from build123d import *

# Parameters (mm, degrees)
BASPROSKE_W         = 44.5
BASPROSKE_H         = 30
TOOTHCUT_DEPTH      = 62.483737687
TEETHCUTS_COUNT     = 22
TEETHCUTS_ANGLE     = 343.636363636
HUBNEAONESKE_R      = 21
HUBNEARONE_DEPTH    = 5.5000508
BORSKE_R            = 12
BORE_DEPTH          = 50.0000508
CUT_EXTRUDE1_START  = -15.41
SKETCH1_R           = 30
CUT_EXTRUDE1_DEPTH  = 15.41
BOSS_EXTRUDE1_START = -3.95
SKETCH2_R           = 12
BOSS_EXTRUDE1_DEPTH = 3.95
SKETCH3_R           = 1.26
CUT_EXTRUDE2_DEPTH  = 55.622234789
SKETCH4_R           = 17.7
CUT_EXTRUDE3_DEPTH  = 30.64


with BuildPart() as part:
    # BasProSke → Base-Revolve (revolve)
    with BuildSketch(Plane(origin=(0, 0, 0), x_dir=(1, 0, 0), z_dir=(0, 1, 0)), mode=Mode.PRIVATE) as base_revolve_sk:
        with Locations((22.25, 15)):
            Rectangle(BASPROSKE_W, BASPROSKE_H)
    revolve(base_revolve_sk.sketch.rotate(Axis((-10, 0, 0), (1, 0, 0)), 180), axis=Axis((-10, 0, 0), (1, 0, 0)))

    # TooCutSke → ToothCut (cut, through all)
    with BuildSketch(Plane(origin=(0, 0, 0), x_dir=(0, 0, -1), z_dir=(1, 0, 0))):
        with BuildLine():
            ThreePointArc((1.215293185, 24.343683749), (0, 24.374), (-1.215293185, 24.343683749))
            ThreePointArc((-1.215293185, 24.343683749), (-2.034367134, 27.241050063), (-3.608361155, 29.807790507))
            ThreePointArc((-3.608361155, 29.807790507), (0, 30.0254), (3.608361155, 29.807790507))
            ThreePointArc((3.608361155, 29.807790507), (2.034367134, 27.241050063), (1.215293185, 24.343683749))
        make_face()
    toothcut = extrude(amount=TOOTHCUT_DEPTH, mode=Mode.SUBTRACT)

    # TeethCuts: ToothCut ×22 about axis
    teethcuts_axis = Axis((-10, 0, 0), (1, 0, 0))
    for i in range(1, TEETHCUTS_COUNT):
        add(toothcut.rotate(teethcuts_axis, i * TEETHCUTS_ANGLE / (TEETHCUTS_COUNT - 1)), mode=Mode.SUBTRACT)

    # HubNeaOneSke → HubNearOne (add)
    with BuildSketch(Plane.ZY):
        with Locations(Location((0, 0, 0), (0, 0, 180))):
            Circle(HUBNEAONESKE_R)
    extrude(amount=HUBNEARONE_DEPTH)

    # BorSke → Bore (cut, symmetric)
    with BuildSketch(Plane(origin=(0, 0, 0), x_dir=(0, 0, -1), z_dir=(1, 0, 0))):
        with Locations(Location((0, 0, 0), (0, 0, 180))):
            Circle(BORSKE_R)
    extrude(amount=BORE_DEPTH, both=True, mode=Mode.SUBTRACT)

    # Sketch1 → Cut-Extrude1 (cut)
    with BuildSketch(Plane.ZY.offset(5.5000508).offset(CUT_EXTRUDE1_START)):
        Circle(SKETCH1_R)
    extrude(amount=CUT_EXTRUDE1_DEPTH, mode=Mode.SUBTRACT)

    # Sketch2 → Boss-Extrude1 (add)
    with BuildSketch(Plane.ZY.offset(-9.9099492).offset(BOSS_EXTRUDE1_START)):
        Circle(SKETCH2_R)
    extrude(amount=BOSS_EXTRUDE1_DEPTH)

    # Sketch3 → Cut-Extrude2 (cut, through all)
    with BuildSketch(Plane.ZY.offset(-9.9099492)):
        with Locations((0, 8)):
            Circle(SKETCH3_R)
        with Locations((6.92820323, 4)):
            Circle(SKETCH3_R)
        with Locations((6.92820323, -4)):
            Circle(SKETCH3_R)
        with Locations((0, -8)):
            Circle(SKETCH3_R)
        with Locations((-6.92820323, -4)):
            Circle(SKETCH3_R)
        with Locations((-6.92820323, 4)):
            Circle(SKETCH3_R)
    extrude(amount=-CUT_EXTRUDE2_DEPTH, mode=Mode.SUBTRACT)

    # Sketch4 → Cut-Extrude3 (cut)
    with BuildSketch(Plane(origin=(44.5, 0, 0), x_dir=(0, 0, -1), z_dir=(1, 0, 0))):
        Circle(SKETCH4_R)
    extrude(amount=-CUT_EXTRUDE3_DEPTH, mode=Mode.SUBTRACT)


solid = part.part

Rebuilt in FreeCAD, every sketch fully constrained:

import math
import FreeCAD as App
import Part
import Sketcher

V = App.Vector


def add_polygon(sketch, points):
    """Adds a closed chain of lines whose ends are joined by coincident constraints."""
    first, n = sketch.GeometryCount, len(points)
    for a, b in zip(points, points[1:] + points[:1]):
        sketch.addGeometry(Part.LineSegment(App.Vector(*a, 0), App.Vector(*b, 0)), False)
    for i in range(n):
        sketch.addConstraint(Sketcher.Constraint("Coincident", first + i, 2, first + (i + 1) % n, 1))

doc = App.newDocument("Part")
body = doc.addObject("PartDesign::Body", "Body")

sketch1 = doc.addObject("Sketcher::SketchObject", "Sketch")
body.addObject(sketch1)
sketch1.AttachmentSupport = (doc.XZ_Plane, [""])
sketch1.MapMode = "FlatFace"
add_polygon(sketch1, [(0, -30), (0, 0), (44, 0), (44, -30)])
sketch1.addConstraint([
    Sketcher.Constraint("Vertical", 0),
    Sketcher.Constraint("Horizontal", 1),
    Sketcher.Constraint("Vertical", 2),
    Sketcher.Constraint("Horizontal", 3),
    Sketcher.Constraint("Coincident", 0, 2, -1, 1),
    Sketcher.Constraint("DistanceY", 0, 1, 0, 2, 30.0),
    Sketcher.Constraint("DistanceX", 1, 1, 1, 2, 44.5),
])
revolution = doc.addObject("PartDesign::Revolution", "Revolution")
body.addObject(revolution)
revolution.Profile = sketch1
revolution.ReferenceAxis = (sketch1, ["H_Axis"])
revolution.Angle = 360

sketch2 = doc.addObject("Sketcher::SketchObject", "Sketch001")
body.addObject(sketch2)
sketch2.AttachmentSupport = (doc.YZ_Plane, [""])
sketch2.MapMode = "FlatFace"
sketch2.addGeometry([
    Part.ArcOfCircle(Part.Circle(V(0, 0, 0), V(0, 0, 1), 24.4), math.radians(-2.86), math.radians(2.86)),
    Part.ArcOfCircle(Part.Circle(V(22.8, -12.1, 0), V(0, 0, 1), 11), math.radians(51), math.radians(82)),
    Part.ArcOfCircle(Part.Circle(V(0, 0, 0), V(0, 0, 1), 30), math.radians(-6.9), math.radians(6.9)),
    Part.ArcOfCircle(Part.Circle(V(22.8, 12.1, 0), V(0, 0, 1), 11), math.radians(-82), math.radians(-51)),
], False)
sketch2.addConstraint([
    Sketcher.Constraint("Coincident", 0, 1, 1, 2),
    Sketcher.Constraint("Coincident", 1, 1, 2, 1),
    Sketcher.Constraint("Coincident", 2, 2, 3, 2),
    Sketcher.Constraint("Coincident", 3, 1, 0, 2),
    Sketcher.Constraint("Coincident", 0, 3, -1, 1),
    Sketcher.Constraint("Coincident", 2, 3, -1, 1),
    Sketcher.Constraint("Equal", 1, 3),
    Sketcher.Constraint("Symmetric", 1, 3, 3, 3, -1),
    Sketcher.Constraint("Radius", 1, 11.0),
    Sketcher.Constraint("Radius", 0, 24.374),
    Sketcher.Constraint("Radius", 2, 30.0254),
    Sketcher.Constraint("DistanceX", -1, 1, 1, 3, 22.828141),
    Sketcher.Constraint("DistanceY", 1, 3, -1, 1, 12.11039),
])
pocket1 = doc.addObject("PartDesign::Pocket", "Pocket")
body.addObject(pocket1)
pocket1.Profile = sketch2
pocket1.Type = "ThroughAll"
pocket1.Reversed = True
doc.recompute()

polarpattern = doc.addObject("PartDesign::PolarPattern", "PolarPattern")
body.addObject(polarpattern)
polarpattern.Originals = [pocket1]
polarpattern.Axis = (doc.X_Axis, [""])
polarpattern.Angle = 360
polarpattern.Occurrences = 22
body.Tip = polarpattern

sketch3 = doc.addObject("Sketcher::SketchObject", "Sketch002")
body.addObject(sketch3)
sketch3.AttachmentSupport = (doc.YZ_Plane, [""])
sketch3.MapMode = "FlatFace"
sketch3.addGeometry(Part.Circle(V(0, 0, 0), V(0, 0, 1), 21), False)
sketch3.addConstraint([
    Sketcher.Constraint("Coincident", 0, 3, -1, 1),
    Sketcher.Constraint("Diameter", 0, 42.0),
])
pad1 = doc.addObject("PartDesign::Pad", "Pad")
body.addObject(pad1)
pad1.Profile = sketch3
pad1.Length = 5.500051
pad1.Reversed = True

sketch4 = doc.addObject("Sketcher::SketchObject", "Sketch003")
body.addObject(sketch4)
sketch4.AttachmentSupport = (doc.YZ_Plane, [""])
sketch4.MapMode = "FlatFace"
sketch4.addGeometry(Part.Circle(V(0, 0, 0), V(0, 0, 1), 12), False)
sketch4.addConstraint([
    Sketcher.Constraint("Coincident", 0, 3, -1, 1),
    Sketcher.Constraint("Diameter", 0, 24.0),
])
pocket2 = doc.addObject("PartDesign::Pocket", "Pocket001")
body.addObject(pocket2)
pocket2.Profile = sketch4
pocket2.Length = 100.000102
pocket2.Midplane = True

sketch5 = doc.addObject("Sketcher::SketchObject", "Sketch004")
body.addObject(sketch5)
sketch5.AttachmentSupport = (doc.YZ_Plane, [""])
sketch5.MapMode = "FlatFace"
sketch5.AttachmentOffset = App.Placement(V(0, 0, 9.909949), App.Rotation())
sketch5.addGeometry(Part.Circle(V(0, 0, 0), V(0, 0, 1), 30), False)
sketch5.addConstraint([
    Sketcher.Constraint("Coincident", 0, 3, -1, 1),
    Sketcher.Constraint("Diameter", 0, 60.0),
])
pocket3 = doc.addObject("PartDesign::Pocket", "Pocket002")
body.addObject(pocket3)
pocket3.Profile = sketch5
pocket3.Length = 15.41

sketch6 = doc.addObject("Sketcher::SketchObject", "Sketch005")
body.addObject(sketch6)
sketch6.AttachmentSupport = (doc.YZ_Plane, [""])
sketch6.MapMode = "FlatFace"
sketch6.AttachmentOffset = App.Placement(V(0, 0, 13.859949), App.Rotation())
sketch6.addGeometry(Part.Circle(V(0, 0, 0), V(0, 0, 1), 12), False)
sketch6.addConstraint([
    Sketcher.Constraint("Coincident", 0, 3, -1, 1),
    Sketcher.Constraint("Diameter", 0, 24.0),
])
pad2 = doc.addObject("PartDesign::Pad", "Pad001")
body.addObject(pad2)
pad2.Profile = sketch6
pad2.Length = 3.95
pad2.Reversed = True

sketch7 = doc.addObject("Sketcher::SketchObject", "Sketch006")
body.addObject(sketch7)
sketch7.AttachmentSupport = (doc.YZ_Plane, [""])
sketch7.MapMode = "FlatFace"
sketch7.AttachmentOffset = App.Placement(V(0, 0, 9.909949), App.Rotation())
sketch7.addGeometry([
    Part.Circle(V(8, 0, 0), V(0, 0, 1), 1.3),
    Part.Circle(V(4, 6.9, 0), V(0, 0, 1), 1.3),
    Part.Circle(V(-4, 6.9, 0), V(0, 0, 1), 1.3),
    Part.Circle(V(-8, 0, 0), V(0, 0, 1), 1.3),
    Part.Circle(V(-4, -6.9, 0), V(0, 0, 1), 1.3),
    Part.Circle(V(4, -6.9, 0), V(0, 0, 1), 1.3),
], False)
sketch7.addConstraint([
    Sketcher.Constraint("Equal", 0, 1),
    Sketcher.Constraint("Equal", 1, 2),
    Sketcher.Constraint("Equal", 2, 3),
    Sketcher.Constraint("Equal", 3, 4),
    Sketcher.Constraint("Equal", 4, 5),
    Sketcher.Constraint("Symmetric", 0, 3, 3, 3, -1, 1),
    Sketcher.Constraint("Symmetric", 1, 3, 4, 3, -1, 1),
    Sketcher.Constraint("Symmetric", 2, 3, 5, 3, -1, 1),
    Sketcher.Constraint("Symmetric", 1, 3, 2, 3, -2),
    Sketcher.Constraint("PointOnObject", 0, 3, -1),
    Sketcher.Constraint("Diameter", 0, 2.52),
    Sketcher.Constraint("DistanceX", -1, 1, 0, 3, 8.0),
    Sketcher.Constraint("DistanceX", -1, 1, 1, 3, 4.0),
    Sketcher.Constraint("DistanceY", -1, 1, 1, 3, 6.928203),
])
pocket4 = doc.addObject("PartDesign::Pocket", "Pocket003")
body.addObject(pocket4)
pocket4.Profile = sketch7
pocket4.Type = "ThroughAll"
pocket4.Reversed = True

sketch8 = doc.addObject("Sketcher::SketchObject", "Sketch007")
body.addObject(sketch8)
sketch8.AttachmentSupport = (doc.YZ_Plane, [""])
sketch8.MapMode = "FlatFace"
sketch8.AttachmentOffset = App.Placement(V(0, 0, 44.5), App.Rotation())
sketch8.addGeometry(Part.Circle(V(0, 0, 0), V(0, 0, 1), 18), False)
sketch8.addConstraint([
    Sketcher.Constraint("Coincident", 0, 3, -1, 1),
    Sketcher.Constraint("Diameter", 0, 35.4),
])
pocket5 = doc.addObject("PartDesign::Pocket", "Pocket004")
body.addObject(pocket5)
pocket5.Profile = sketch8
pocket5.Length = 30.64

doc.recompute()
